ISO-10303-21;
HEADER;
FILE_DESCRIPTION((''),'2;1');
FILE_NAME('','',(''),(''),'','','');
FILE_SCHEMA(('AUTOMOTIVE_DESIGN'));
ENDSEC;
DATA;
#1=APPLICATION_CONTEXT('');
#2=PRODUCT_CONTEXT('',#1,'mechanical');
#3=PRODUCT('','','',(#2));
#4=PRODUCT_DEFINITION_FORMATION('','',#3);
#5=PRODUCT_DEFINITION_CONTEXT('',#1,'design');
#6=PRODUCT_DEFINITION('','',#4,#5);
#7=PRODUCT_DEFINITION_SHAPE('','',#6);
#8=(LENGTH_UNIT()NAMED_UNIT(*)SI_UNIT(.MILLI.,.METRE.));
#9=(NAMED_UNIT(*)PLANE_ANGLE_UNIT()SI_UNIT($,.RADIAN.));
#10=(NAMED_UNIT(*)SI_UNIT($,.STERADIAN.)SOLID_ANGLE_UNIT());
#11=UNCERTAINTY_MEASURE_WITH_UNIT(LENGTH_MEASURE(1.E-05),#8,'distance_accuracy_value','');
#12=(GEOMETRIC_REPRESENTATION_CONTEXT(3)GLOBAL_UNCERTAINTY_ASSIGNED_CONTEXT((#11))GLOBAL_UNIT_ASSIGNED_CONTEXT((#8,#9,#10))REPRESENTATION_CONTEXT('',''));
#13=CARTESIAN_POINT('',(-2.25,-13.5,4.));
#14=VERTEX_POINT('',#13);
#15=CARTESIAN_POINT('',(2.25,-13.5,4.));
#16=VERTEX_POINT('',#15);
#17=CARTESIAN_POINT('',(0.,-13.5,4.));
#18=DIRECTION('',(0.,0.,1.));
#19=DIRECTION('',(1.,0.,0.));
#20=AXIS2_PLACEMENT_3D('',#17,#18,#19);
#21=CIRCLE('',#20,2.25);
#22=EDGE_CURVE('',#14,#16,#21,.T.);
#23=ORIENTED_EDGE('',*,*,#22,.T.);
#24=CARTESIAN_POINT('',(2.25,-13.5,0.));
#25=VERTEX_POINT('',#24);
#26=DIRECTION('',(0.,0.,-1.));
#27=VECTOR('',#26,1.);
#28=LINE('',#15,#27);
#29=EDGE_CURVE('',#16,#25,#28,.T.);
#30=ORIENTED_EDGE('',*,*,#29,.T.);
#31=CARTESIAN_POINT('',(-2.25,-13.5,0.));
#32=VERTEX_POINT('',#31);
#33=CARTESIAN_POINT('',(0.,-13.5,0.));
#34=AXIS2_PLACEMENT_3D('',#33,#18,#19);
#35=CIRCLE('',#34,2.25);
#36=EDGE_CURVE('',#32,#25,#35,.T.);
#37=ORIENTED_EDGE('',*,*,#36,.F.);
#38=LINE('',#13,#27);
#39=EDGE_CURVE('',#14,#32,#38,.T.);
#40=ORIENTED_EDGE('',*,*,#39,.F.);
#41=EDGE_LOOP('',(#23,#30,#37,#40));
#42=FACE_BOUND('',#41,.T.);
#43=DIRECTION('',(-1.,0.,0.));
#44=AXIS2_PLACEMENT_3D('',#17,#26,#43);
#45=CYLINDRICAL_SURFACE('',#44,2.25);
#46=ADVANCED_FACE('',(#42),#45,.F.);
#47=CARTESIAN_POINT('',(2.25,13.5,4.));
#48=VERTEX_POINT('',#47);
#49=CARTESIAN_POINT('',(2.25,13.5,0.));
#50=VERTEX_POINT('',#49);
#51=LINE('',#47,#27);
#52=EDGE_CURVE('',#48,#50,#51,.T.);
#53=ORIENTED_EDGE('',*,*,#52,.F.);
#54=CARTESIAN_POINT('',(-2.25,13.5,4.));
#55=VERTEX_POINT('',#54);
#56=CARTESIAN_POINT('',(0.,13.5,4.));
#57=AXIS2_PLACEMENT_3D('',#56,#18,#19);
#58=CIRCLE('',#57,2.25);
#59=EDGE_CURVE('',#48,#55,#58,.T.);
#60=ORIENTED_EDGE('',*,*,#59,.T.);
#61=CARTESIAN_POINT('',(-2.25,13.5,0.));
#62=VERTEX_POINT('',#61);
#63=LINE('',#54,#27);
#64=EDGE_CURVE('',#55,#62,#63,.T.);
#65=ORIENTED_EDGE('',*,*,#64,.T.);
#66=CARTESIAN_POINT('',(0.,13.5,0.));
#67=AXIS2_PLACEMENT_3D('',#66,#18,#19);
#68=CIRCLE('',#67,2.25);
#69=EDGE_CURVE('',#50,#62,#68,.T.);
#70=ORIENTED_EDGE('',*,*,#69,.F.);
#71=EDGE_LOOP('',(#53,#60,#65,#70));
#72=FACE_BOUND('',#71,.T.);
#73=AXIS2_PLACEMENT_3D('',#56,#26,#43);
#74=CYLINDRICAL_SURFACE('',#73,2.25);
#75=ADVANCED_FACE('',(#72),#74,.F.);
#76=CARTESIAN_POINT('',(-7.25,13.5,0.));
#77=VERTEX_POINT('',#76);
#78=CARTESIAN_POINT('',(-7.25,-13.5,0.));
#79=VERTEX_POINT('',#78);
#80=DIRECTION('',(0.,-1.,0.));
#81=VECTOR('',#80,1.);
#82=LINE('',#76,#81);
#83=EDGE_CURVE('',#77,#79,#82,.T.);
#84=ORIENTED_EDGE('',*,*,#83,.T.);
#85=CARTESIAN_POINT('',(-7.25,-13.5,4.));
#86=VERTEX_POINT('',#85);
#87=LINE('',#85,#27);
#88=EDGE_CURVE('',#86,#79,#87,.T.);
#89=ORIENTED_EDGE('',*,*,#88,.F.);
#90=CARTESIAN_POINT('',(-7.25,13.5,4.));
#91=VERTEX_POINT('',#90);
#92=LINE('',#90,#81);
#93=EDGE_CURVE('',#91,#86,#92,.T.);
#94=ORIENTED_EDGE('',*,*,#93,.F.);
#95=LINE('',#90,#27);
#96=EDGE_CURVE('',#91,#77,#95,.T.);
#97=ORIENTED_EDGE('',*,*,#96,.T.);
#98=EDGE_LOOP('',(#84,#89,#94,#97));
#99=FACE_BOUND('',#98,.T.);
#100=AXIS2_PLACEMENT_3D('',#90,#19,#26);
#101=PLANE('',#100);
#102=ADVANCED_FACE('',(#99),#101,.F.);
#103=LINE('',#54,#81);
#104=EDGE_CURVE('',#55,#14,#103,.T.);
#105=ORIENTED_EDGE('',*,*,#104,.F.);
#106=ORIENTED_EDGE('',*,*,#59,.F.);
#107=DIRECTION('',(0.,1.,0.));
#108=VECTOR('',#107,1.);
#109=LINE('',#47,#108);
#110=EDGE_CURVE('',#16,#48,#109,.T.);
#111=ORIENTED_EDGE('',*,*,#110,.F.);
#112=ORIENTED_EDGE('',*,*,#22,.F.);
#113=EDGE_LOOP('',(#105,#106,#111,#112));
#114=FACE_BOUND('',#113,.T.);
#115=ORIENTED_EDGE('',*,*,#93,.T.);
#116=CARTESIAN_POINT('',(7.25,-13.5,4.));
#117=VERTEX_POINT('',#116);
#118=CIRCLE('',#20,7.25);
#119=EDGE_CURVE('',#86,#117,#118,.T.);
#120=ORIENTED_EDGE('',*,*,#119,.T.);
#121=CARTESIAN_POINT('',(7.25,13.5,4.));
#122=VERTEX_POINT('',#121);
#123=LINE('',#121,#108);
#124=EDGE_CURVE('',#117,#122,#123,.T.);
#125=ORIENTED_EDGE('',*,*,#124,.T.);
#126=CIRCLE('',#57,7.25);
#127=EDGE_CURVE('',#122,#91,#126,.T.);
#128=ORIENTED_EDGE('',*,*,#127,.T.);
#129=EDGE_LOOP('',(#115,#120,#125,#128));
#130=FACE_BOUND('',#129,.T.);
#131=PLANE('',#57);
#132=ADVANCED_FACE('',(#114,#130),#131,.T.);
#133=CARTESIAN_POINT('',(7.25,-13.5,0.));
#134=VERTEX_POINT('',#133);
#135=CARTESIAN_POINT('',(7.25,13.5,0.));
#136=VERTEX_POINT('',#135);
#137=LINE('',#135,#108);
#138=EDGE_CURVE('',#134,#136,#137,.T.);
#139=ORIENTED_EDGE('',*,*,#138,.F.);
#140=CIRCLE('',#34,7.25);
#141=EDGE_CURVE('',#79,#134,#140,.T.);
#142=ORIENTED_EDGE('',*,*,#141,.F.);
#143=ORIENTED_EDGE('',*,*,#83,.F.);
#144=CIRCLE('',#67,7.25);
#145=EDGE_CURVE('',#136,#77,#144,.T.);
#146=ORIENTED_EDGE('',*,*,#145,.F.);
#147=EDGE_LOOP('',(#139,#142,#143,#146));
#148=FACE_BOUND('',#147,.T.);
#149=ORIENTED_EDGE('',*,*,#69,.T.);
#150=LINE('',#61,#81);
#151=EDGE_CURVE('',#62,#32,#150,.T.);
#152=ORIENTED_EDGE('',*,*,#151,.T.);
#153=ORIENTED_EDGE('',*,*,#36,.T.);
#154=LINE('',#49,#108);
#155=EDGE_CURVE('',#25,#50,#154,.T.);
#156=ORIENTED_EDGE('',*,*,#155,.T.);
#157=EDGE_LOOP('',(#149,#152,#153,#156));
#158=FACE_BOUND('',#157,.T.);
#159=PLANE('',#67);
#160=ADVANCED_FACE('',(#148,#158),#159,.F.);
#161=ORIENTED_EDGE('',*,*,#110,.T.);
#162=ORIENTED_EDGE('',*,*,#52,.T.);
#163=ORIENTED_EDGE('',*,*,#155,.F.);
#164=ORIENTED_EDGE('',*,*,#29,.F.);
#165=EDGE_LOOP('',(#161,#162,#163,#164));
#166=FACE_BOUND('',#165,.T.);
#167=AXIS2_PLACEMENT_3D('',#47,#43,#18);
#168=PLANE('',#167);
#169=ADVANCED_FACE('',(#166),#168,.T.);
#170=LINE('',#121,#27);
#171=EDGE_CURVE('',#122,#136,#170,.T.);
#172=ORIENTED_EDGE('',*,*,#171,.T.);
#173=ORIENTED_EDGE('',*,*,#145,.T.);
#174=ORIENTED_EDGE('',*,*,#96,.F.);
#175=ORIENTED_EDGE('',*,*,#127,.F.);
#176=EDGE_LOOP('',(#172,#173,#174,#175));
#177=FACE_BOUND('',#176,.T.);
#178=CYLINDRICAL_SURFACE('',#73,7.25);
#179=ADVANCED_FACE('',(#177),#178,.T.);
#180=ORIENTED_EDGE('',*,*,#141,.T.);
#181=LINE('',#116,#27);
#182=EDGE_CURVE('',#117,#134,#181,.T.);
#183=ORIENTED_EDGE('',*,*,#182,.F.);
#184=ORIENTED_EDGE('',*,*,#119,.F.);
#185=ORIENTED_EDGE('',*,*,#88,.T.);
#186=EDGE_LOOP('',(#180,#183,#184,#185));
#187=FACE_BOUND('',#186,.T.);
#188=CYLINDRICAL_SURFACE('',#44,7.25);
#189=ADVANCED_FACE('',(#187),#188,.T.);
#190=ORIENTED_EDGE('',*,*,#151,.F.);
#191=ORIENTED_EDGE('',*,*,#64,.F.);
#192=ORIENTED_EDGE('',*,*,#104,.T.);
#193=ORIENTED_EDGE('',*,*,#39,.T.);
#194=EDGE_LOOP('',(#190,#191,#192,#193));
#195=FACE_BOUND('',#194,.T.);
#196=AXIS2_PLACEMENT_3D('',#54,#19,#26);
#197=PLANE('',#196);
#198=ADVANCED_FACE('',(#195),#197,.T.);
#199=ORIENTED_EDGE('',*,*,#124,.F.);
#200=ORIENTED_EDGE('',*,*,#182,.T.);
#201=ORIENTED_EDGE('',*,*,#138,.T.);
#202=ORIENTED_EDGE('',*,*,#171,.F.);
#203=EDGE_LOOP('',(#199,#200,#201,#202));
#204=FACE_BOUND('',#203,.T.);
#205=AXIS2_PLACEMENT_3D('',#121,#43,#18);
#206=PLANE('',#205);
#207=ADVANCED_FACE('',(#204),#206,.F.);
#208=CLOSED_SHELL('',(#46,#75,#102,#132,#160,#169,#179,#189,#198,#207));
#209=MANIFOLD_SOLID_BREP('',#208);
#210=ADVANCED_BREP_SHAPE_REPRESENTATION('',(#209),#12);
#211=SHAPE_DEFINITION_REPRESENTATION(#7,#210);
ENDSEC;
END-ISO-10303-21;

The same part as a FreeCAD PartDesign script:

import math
import FreeCAD as App
import Part
import Sketcher
from FreeCAD import Vector

doc = App.newDocument("Part")
params = doc.addObject("Spreadsheet::Sheet", "Params")
for row, (alias, value) in enumerate([
    ("sketch1_height", "27 mm"),
    ("sketch1_radius", "7.25 mm"),
    ("sketch1_radius2", "2.25 mm"),
    ("pad1_length", "4 mm"),
], start=1):
    params.set(f"A{row}", alias)
    params.set(f"B{row}", "=" + value)
    params.setAlias(f"B{row}", alias)

body = doc.addObject("PartDesign::Body", "Body")

# Sketch on XY plane
sketch1 = body.newObject("Sketcher::SketchObject", "Sketch")
sketch1.AttachmentSupport = (doc.getObject("XY_Plane"), [""])
sketch1.MapMode = "FlatFace"
sketch1.addGeometry(Part.LineSegment(Vector(7.25, -13.5, 0), Vector(7.25, 13.5, 0)), False)
sketch1.addGeometry(Part.ArcOfCircle(Part.Circle(Vector(0, 13.5, 0), Vector(0, 0, 1), 7.25), math.radians(0), math.radians(180)), False)
sketch1.addGeometry(Part.LineSegment(Vector(-7.25, 13.5, 0), Vector(-7.25, -13.5, 0)), False)
sketch1.addGeometry(Part.ArcOfCircle(Part.Circle(Vector(0, -13.5, 0), Vector(0, 0, 1), 7.25), math.radians(180), math.radians(360)), False)
sketch1.addGeometry(Part.LineSegment(Vector(2.25, 13.5, 0), Vector(2.25, -13.5, 0)), False)
sketch1.addGeometry(Part.ArcOfCircle(Part.Circle(Vector(0, -13.5, 0), Vector(0, 0, 1), 2.25), math.radians(180), math.radians(360)), False)
sketch1.addGeometry(Part.LineSegment(Vector(-2.25, -13.5, 0), Vector(-2.25, 13.5, 0)), False)
sketch1.addGeometry(Part.ArcOfCircle(Part.Circle(Vector(0, 13.5, 0), Vector(0, 0, 1), 2.25), math.radians(0), math.radians(180)), False)
sketch1.addConstraint(Sketcher.Constraint("Tangent", 0, 2, 1, 1))
sketch1.addConstraint(Sketcher.Constraint("Tangent", 1, 2, 2, 1))
sketch1.addConstraint(Sketcher.Constraint("Tangent", 2, 2, 3, 1))
sketch1.addConstraint(Sketcher.Constraint("Tangent", 3, 2, 0, 1))
sketch1.addConstraint(Sketcher.Constraint("Tangent", 4, 2, 5, 2))
sketch1.addConstraint(Sketcher.Constraint("Tangent", 5, 1, 6, 1))
sketch1.addConstraint(Sketcher.Constraint("Tangent", 6, 2, 7, 2))
sketch1.addConstraint(Sketcher.Constraint("Tangent", 7, 1, 4, 1))
sketch1.addConstraint(Sketcher.Constraint("Vertical", 0))
sketch1.addConstraint(Sketcher.Constraint("Vertical", 2))
sketch1.addConstraint(Sketcher.Constraint("Vertical", 4))
sketch1.addConstraint(Sketcher.Constraint("Vertical", 6))
sketch1.addConstraint(Sketcher.Constraint("Coincident", 5, 3, 3, 3))
sketch1.addConstraint(Sketcher.Constraint("Symmetric", 1, 3, 3, 3, -1, 1))
sketch1.addConstraint(Sketcher.Constraint("Horizontal", 7, 3, 0, 2))
sketch1.addConstraint(Sketcher.Constraint("DistanceY", 0, 1, 0, 2, 27.0))
sketch1.addConstraint(Sketcher.Constraint("Radius", 1, 7.25))
sketch1.addConstraint(Sketcher.Constraint("Radius", 5, 2.25))
sketch1.setExpression("Constraints[15]", "Params.sketch1_height")
sketch1.setExpression("Constraints[16]", "Params.sketch1_radius")
sketch1.setExpression("Constraints[17]", "Params.sketch1_radius2")
pad1 = body.newObject("PartDesign::Pad", "Pad")
pad1.Profile = sketch1
pad1.setExpression("Length", "Params.pad1_length")

doc.recompute()
